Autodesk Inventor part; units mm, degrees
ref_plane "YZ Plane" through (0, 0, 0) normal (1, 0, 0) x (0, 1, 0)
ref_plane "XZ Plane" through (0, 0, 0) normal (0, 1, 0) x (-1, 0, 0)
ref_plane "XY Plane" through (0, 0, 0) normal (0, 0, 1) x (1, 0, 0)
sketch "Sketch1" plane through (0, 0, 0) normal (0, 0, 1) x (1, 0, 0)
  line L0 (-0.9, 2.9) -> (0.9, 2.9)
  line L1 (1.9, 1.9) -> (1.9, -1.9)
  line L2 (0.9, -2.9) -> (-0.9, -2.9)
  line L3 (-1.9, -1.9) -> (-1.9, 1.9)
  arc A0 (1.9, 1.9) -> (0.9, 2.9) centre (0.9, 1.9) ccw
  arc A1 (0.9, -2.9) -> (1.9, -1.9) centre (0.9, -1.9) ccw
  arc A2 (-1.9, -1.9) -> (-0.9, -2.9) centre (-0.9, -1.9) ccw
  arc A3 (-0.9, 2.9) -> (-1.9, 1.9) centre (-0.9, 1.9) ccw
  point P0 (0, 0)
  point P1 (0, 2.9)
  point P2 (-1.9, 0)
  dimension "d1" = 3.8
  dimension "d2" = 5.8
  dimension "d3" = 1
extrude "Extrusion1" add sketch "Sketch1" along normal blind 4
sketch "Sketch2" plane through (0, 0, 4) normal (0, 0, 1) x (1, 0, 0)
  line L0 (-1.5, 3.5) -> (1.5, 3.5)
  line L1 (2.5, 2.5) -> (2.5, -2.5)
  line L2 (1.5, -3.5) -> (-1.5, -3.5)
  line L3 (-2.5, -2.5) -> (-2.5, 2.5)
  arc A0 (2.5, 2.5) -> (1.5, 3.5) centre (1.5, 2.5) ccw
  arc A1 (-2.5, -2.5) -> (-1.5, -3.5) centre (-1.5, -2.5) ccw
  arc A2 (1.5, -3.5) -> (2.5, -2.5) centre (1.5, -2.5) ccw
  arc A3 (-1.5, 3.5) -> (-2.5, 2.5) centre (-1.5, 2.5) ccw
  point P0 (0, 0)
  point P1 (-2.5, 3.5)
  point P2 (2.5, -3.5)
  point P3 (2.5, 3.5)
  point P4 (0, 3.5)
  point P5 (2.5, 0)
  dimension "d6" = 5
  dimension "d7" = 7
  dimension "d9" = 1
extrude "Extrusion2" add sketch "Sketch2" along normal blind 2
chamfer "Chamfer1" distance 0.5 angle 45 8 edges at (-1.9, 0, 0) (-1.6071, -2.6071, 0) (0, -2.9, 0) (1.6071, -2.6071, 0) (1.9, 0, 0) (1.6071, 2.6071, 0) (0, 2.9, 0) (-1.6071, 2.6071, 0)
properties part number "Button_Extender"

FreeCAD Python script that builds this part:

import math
import FreeCAD as App
import Part
import Sketcher

V = App.Vector
Q = App.Units.Quantity


def edges_at(feature, points):
    """Names of the edges that pass closest to the given points."""
    edges = feature.Shape.Edges
    near = lambda p: min(range(len(edges)), key=lambda i: edges[i].distToShape(Part.Vertex(*p))[0])
    return sorted({f"Edge{near(p) + 1}" for p in points})

doc = App.newDocument("Part")
body = doc.addObject("PartDesign::Body", "Body")

# Sketch on XY plane
sketch1 = body.newObject("Sketcher::SketchObject", "Sketch")
sketch1.AttachmentSupport = (doc.getObject("XY_Plane"), [""])
sketch1.MapMode = "FlatFace"
sketch1.addGeometry([
    Part.LineSegment(V(0.9, 2.9, 0), V(-0.9, 2.9, 0)),  # 0
    Part.ArcOfCircle(Part.Circle(V(-0.9, 1.9, 0), V(0, 0, 1), 1), math.radians(90), math.radians(180)),  # 1
    Part.LineSegment(V(-1.9, 1.9, 0), V(-1.9, -1.9, 0)),  # 2
    Part.ArcOfCircle(Part.Circle(V(-0.9, -1.9, 0), V(0, 0, 1), 1), math.radians(180), math.radians(270)),  # 3
    Part.LineSegment(V(-0.9, -2.9, 0), V(0.9, -2.9, 0)),  # 4
    Part.ArcOfCircle(Part.Circle(V(0.9, -1.9, 0), V(0, 0, 1), 1), math.radians(-90), math.radians(0)),  # 5
    Part.LineSegment(V(1.9, -1.9, 0), V(1.9, 1.9, 0)),  # 6
    Part.ArcOfCircle(Part.Circle(V(0.9, 1.9, 0), V(0, 0, 1), 1), math.radians(0), math.radians(90)),  # 7
], False)
sketch1.addConstraint([
    Sketcher.Constraint("Tangent", 0, 2, 1, 1),
    Sketcher.Constraint("Tangent", 1, 2, 2, 1),
    Sketcher.Constraint("Tangent", 2, 2, 3, 1),
    Sketcher.Constraint("Tangent", 3, 2, 4, 1),
    Sketcher.Constraint("Tangent", 4, 2, 5, 1),
    Sketcher.Constraint("Tangent", 5, 2, 6, 1),
    Sketcher.Constraint("Tangent", 6, 2, 7, 1),
    Sketcher.Constraint("Tangent", 7, 2, 0, 1),
    Sketcher.Constraint("Horizontal", 0),
    Sketcher.Constraint("Vertical", 2),
    Sketcher.Constraint("Horizontal", 4),
    Sketcher.Constraint("Vertical", 6),
    Sketcher.Constraint("Equal", 1, 3),
    Sketcher.Constraint("Equal", 3, 5),
    Sketcher.Constraint("Equal", 5, 7),
    Sketcher.Constraint("Symmetric", 1, 3, 5, 3, -1, 1),
    Sketcher.Constraint("Radius", 1, Q("1 mm")),
    Sketcher.Constraint("DistanceY", 2, 2, 2, 1, Q("3.8 mm")),
    Sketcher.Constraint("DistanceX", 2, 2, 5, 2, Q("3.8 mm")),
])
pad1 = body.newObject("PartDesign::Pad", "Pad")
pad1.Profile = sketch1
pad1.Length = 4

# Sketch on XY plane
sketch2 = body.newObject("Sketcher::SketchObject", "Sketch001")
sketch2.AttachmentSupport = (doc.getObject("XY_Plane"), [""])
sketch2.MapMode = "FlatFace"
sketch2.AttachmentOffset = App.Placement(V(0, 0, 4), App.Rotation())
sketch2.addGeometry([
    Part.LineSegment(V(1.5, 3.5, 0), V(-1.5, 3.5, 0)),  # 0
    Part.ArcOfCircle(Part.Circle(V(-1.5, 2.5, 0), V(0, 0, 1), 1), math.radians(90), math.radians(180)),  # 1
    Part.LineSegment(V(-2.5, 2.5, 0), V(-2.5, -2.5, 0)),  # 2
    Part.ArcOfCircle(Part.Circle(V(-1.5, -2.5, 0), V(0, 0, 1), 1), math.radians(180), math.radians(270)),  # 3
    Part.LineSegment(V(-1.5, -3.5, 0), V(1.5, -3.5, 0)),  # 4
    Part.ArcOfCircle(Part.Circle(V(1.5, -2.5, 0), V(0, 0, 1), 1), math.radians(-90), math.radians(0)),  # 5
    Part.LineSegment(V(2.5, -2.5, 0), V(2.5, 2.5, 0)),  # 6
    Part.ArcOfCircle(Part.Circle(V(1.5, 2.5, 0), V(0, 0, 1), 1), math.radians(0), math.radians(90)),  # 7
], False)
sketch2.addConstraint([
    Sketcher.Constraint("Tangent", 0, 2, 1, 1),
    Sketcher.Constraint("Tangent", 1, 2, 2, 1),
    Sketcher.Constraint("Tangent", 2, 2, 3, 1),
    Sketcher.Constraint("Tangent", 3, 2, 4, 1),
    Sketcher.Constraint("Tangent", 4, 2, 5, 1),
    Sketcher.Constraint("Tangent", 5, 2, 6, 1),
    Sketcher.Constraint("Tangent", 6, 2, 7, 1),
    Sketcher.Constraint("Tangent", 7, 2, 0, 1),
    Sketcher.Constraint("Horizontal", 0),
    Sketcher.Constraint("Vertical", 2),
    Sketcher.Constraint("Horizontal", 4),
    Sketcher.Constraint("Vertical", 6),
    Sketcher.Constraint("Equal", 1, 3),
    Sketcher.Constraint("Equal", 3, 5),
    Sketcher.Constraint("Equal", 5, 7),
    Sketcher.Constraint("Symmetric", 1, 3, 5, 3, -1, 1),
    Sketcher.Constraint("Radius", 1, Q("1 mm")),
    Sketcher.Constraint("DistanceY", 2, 2, 2, 1, Q("5 mm")),
    Sketcher.Constraint("DistanceX", 2, 2, 5, 2, Q("5 mm")),
])
pad2 = body.newObject("PartDesign::Pad", "Pad001")
pad2.Profile = sketch2
pad2.Length = 2
doc.recompute()

chamfer = body.newObject("PartDesign::Chamfer", "Chamfer")
chamfer.Base = (pad2, edges_at(pad2, [
    (-1.9, 0, 0),
    (-1.607, -2.607, 0),
    (0, -2.9, 0),
    (1.607, -2.607, 0),
    (1.9, 0, 0),
    (1.607, 2.607, 0),
    (0, 2.9, 0),
    (-1.607, 2.607, 0),
]))
chamfer.Size = 0.5

doc.recompute()
